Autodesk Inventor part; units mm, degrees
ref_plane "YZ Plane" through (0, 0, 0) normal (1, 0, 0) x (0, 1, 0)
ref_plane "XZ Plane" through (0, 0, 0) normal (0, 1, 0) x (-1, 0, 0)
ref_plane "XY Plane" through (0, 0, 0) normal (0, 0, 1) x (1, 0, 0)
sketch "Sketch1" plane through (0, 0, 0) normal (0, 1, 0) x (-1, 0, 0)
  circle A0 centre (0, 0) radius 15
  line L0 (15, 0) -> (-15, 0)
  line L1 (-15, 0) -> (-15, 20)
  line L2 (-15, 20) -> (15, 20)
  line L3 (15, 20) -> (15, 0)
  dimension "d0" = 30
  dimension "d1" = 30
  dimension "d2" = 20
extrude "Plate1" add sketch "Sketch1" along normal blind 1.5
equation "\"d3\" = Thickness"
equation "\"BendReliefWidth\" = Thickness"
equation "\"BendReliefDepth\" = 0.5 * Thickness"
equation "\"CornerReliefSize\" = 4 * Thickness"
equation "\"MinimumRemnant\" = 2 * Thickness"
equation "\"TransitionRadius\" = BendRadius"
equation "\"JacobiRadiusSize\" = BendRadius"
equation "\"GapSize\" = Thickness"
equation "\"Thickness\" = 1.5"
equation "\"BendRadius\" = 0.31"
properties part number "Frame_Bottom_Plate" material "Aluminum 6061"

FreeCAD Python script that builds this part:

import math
import FreeCAD as App
import Part
import Sketcher

doc = App.newDocument("Part")
body = doc.addObject("PartDesign::Body", "Body")

sketch1 = doc.addObject("Sketcher::SketchObject", "Sketch")
body.addObject(sketch1)
sketch1.AttachmentSupport = (doc.XZ_Plane, [""])
sketch1.MapMode = "FlatFace"
sketch1.addGeometry([
    Part.ArcOfCircle(Part.Circle(App.Vector(0, 0, 0), App.Vector(0, 0, 1), 15), math.radians(180), math.radians(360)),
    Part.LineSegment(App.Vector(-15, 0, 0), App.Vector(-15, 20, 0)),
    Part.LineSegment(App.Vector(-15, 20, 0), App.Vector(15, 20, 0)),
    Part.LineSegment(App.Vector(15, 20, 0), App.Vector(15, 0, 0)),
], False)
sketch1.addConstraint([
    Sketcher.Constraint("Tangent", 0, 1, 1, 1),
    Sketcher.Constraint("Coincident", 1, 2, 2, 1),
    Sketcher.Constraint("Coincident", 2, 2, 3, 1),
    Sketcher.Constraint("Tangent", 3, 2, 0, 2),
    Sketcher.Constraint("Vertical", 1),
    Sketcher.Constraint("Horizontal", 2),
    Sketcher.Constraint("Vertical", 3),
    Sketcher.Constraint("Coincident", 0, 3, -1, 1),
    Sketcher.Constraint("Radius", 0, 15.0),
    Sketcher.Constraint("DistanceY", 1, 1, 1, 2, 20.0),
])
pad1 = doc.addObject("PartDesign::Pad", "Pad")
body.addObject(pad1)
pad1.Profile = sketch1
pad1.Length = 1.5
pad1.Reversed = True

doc.recompute()
